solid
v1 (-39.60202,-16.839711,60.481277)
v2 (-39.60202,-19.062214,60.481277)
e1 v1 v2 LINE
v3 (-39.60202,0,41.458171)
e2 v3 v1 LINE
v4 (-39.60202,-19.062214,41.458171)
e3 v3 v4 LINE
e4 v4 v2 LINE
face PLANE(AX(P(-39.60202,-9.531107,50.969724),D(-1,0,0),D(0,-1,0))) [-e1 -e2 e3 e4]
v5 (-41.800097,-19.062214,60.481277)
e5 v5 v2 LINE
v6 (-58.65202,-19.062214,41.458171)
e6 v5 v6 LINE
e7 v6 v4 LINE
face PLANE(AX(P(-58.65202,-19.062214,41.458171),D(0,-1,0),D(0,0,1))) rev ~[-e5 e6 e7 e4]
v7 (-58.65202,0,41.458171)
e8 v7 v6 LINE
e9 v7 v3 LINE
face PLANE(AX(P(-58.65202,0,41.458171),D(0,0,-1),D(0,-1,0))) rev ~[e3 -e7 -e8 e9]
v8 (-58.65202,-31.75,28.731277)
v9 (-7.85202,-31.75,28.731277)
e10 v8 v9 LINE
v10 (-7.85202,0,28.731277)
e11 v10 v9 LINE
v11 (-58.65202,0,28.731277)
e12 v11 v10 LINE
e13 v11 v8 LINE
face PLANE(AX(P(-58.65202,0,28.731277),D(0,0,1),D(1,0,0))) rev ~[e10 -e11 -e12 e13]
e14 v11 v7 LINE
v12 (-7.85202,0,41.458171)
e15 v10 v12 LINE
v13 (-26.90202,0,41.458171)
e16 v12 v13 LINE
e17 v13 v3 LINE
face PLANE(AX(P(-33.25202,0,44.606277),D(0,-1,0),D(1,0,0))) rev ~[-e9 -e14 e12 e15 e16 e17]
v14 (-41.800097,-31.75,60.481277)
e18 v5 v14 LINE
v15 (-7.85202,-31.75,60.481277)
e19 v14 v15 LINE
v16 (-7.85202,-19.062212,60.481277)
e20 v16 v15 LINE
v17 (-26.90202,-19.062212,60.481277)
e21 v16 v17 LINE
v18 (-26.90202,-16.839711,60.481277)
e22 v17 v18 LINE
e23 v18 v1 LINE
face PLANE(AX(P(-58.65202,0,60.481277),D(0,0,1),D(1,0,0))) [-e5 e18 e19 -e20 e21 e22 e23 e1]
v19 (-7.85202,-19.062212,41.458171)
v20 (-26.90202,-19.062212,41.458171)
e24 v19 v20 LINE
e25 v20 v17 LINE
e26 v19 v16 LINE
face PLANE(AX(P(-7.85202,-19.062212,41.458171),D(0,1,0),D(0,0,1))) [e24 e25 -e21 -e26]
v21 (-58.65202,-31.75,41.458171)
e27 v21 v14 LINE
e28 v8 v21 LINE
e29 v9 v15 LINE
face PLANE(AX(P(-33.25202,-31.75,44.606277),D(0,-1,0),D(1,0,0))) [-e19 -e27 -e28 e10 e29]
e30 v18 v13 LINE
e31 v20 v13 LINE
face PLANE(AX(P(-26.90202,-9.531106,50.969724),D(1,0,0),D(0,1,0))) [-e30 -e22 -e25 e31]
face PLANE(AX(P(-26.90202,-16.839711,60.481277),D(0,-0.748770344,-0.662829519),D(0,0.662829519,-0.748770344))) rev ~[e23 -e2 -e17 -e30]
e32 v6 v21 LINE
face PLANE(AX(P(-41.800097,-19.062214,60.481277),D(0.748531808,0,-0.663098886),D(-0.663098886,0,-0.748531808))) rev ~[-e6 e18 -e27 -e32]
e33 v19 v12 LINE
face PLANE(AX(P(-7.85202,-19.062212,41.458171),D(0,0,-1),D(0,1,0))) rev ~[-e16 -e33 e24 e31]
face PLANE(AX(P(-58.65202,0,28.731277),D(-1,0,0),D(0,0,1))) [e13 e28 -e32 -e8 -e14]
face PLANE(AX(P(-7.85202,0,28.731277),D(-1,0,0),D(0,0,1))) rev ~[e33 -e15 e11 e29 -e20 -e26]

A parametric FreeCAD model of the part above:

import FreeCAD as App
import Part
import Sketcher
from FreeCAD import Vector
Q = App.Units.Quantity


def add_polygon(sketch, points):
    """Adds a closed chain of lines whose ends are joined by coincident constraints."""
    first, n = sketch.GeometryCount, len(points)
    for a, b in zip(points, points[1:] + points[:1]):
        sketch.addGeometry(Part.LineSegment(App.Vector(*a, 0), App.Vector(*b, 0)), False)
    for i in range(n):
        sketch.addConstraint(Sketcher.Constraint("Coincident", first + i, 2, first + (i + 1) % n, 1))

doc = App.newDocument("Part")
body = doc.addObject("PartDesign::Body", "Body")

# Sketch on XZ plane
sketch1 = body.newObject("Sketcher::SketchObject", "Sketch")
sketch1.AttachmentSupport = (doc.getObject("XZ_Plane"), [""])
sketch1.MapMode = "FlatFace"
add_polygon(sketch1, [(-58.65202, 60.481277), (-58.65202, 28.731277), (-7.85202, 28.731277), (-7.85202, 60.481277)])  # lines 0-3
sketch1.addConstraint([
    Sketcher.Constraint("Vertical", 0),
    Sketcher.Constraint("Horizontal", 1),
    Sketcher.Constraint("Vertical", 2),
    Sketcher.Constraint("Horizontal", 3),
    Sketcher.Constraint("DistanceX", 1, 1, 1, 2, Q("2 in")),
    Sketcher.Constraint("DistanceY", 0, 2, 0, 1, Q("1.25 in")),
    Sketcher.Constraint("DistanceX", 0, 2, -1, 1, 58.65202),
    Sketcher.Constraint("DistanceY", -1, 1, 0, 2, 28.731277),
])
pad1 = body.newObject("PartDesign::Pad", "Pad")
pad1.Profile = sketch1
pad1.Length = Q("1.25 in")

# Sketch on YZ plane
sketch2 = body.newObject("Sketcher::SketchObject", "Sketch001")
sketch2.AttachmentSupport = (doc.getObject("YZ_Plane"), [""])
sketch2.MapMode = "FlatFace"
sketch2.AttachmentOffset = App.Placement(Vector(0, 0, -58.65202), App.Rotation())
add_polygon(sketch2, [(0, 60.481277), (0, 41.458171), (-19.062214, 41.458171), (-19.062214, 60.481277)])  # lines 0-3
sketch2.addConstraint([
    Sketcher.Constraint("Vertical", 0),
    Sketcher.Constraint("Horizontal", 1),
    Sketcher.Constraint("Vertical", 2),
    Sketcher.Constraint("Horizontal", 3),
    Sketcher.Constraint("PointOnObject", 0, 2, -2),
    Sketcher.Constraint("DistanceX", 1, 2, 1, 1, 19.062214),
    Sketcher.Constraint("DistanceY", 0, 2, 0, 1, 19.023106),
    Sketcher.Constraint("DistanceY", -1, 1, 0, 2, 41.458171),
])
pocket1 = body.newObject("PartDesign::Pocket", "Pocket")
pocket1.Profile = sketch2
pocket1.Length = Q("0.75 in")
pocket1.Reversed = True

# Sketch on YZ plane
sketch3 = body.newObject("Sketcher::SketchObject", "Sketch002")
sketch3.AttachmentSupport = (doc.getObject("YZ_Plane"), [""])
sketch3.MapMode = "FlatFace"
sketch3.AttachmentOffset = App.Placement(Vector(0, 0, -7.85202), App.Rotation())
add_polygon(sketch3, [(-19.062212, 60.481277), (-19.062212, 41.458171), (0, 41.458171), (0, 60.481277)])  # lines 0-3
sketch3.addConstraint([
    Sketcher.Constraint("Vertical", 0),
    Sketcher.Constraint("Horizontal", 1),
    Sketcher.Constraint("Vertical", 2),
    Sketcher.Constraint("Horizontal", 3),
    Sketcher.Constraint("PointOnObject", 1, 2, -2),
    Sketcher.Constraint("DistanceX", 1, 1, 1, 2, 19.062212),
    Sketcher.Constraint("DistanceY", 0, 2, 0, 1, 19.023106),
    Sketcher.Constraint("DistanceY", -1, 1, 0, 2, 41.458171),
])
pocket2 = body.newObject("PartDesign::Pocket", "Pocket001")
pocket2.Profile = sketch3
pocket2.Length = Q("0.75 in")

# Sketch on XZ plane
sketch4 = body.newObject("Sketcher::SketchObject", "Sketch003")
sketch4.AttachmentSupport = (doc.getObject("XZ_Plane"), [""])
sketch4.MapMode = "FlatFace"
sketch4.AttachmentOffset = App.Placement(Vector(0, 0, 19.062214), App.Rotation())
add_polygon(sketch4, [(-41.800097, 60.481277), (-58.65202, 41.458171), (-58.65202, 60.481277)])  # lines 0-2
sketch4.addConstraint([
    Sketcher.Constraint("Vertical", 1),
    Sketcher.Constraint("Horizontal", 2),
    Sketcher.Constraint("Distance", 0, 25.413891),
    Sketcher.Constraint("DistanceX", 2, 1, 2, 2, 16.851923),
    Sketcher.Constraint("DistanceX", 0, 2, -1, 1, 58.65202),
    Sketcher.Constraint("DistanceY", -1, 1, 0, 2, 41.458171),
])
pocket3 = body.newObject("PartDesign::Pocket", "Pocket002")
pocket3.Profile = sketch4
pocket3.Length = Q("1 in")
pocket3.Reversed = True

# Sketch on YZ plane
sketch5 = body.newObject("Sketcher::SketchObject", "Sketch004")
sketch5.AttachmentSupport = (doc.getObject("YZ_Plane"), [""])
sketch5.MapMode = "FlatFace"
sketch5.AttachmentOffset = App.Placement(Vector(0, 0, -26.90202), App.Rotation())
add_polygon(sketch5, [(-16.839711, 60.481277), (0, 41.458171), (0, 60.481277)])  # lines 0-2
sketch5.addConstraint([
    Sketcher.Constraint("Vertical", 1),
    Sketcher.Constraint("Horizontal", 2),
    Sketcher.Constraint("PointOnObject", 0, 2, -2),
    Sketcher.Constraint("DistanceX", 2, 2, 2, 1, 16.839711),
    Sketcher.Constraint("DistanceY", 1, 1, 1, 2, 19.023106),
    Sketcher.Constraint("DistanceY", -1, 1, 0, 2, 41.458171),
])
pocket4 = body.newObject("PartDesign::Pocket", "Pocket003")
pocket4.Profile = sketch5
pocket4.Length = Q("1 in")

doc.recompute()
